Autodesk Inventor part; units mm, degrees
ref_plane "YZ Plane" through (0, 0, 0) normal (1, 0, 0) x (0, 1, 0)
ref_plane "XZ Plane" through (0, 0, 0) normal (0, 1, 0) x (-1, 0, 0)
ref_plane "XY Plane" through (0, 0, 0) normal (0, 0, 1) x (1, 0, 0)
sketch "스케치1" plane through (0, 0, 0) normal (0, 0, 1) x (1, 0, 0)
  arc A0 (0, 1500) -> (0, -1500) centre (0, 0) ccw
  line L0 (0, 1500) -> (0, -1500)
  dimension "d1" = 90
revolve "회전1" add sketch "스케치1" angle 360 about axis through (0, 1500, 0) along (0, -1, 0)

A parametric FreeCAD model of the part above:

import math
import FreeCAD as App
import Part
import Sketcher
from FreeCAD import Vector
Q = App.Units.Quantity

doc = App.newDocument("Part")
params = doc.addObject("Spreadsheet::Sheet", "Params")
for row, (alias, value) in enumerate([
    ("sketch1_radius", "1500 mm"),
    ("revolution_angle", "360 deg"),
], start=1):
    params.set(f"A{row}", alias)
    params.set(f"B{row}", "=" + value)
    params.setAlias(f"B{row}", alias)

body = doc.addObject("PartDesign::Body", "Body")

# Sketch on XY plane
sketch1 = body.newObject("Sketcher::SketchObject", "Sketch")
sketch1.AttachmentSupport = (doc.getObject("XY_Plane"), [""])
sketch1.MapMode = "FlatFace"
sketch1.addGeometry(Part.LineSegment(Vector(0, -1500, 0), Vector(0, 1500, 0)), False)
sketch1.addGeometry(Part.ArcOfCircle(Part.Circle(Vector(0, 0, 0), Vector(0, 0, 1), 1500), math.radians(90), math.radians(270)), False)
sketch1.addConstraint(Sketcher.Constraint("Coincident", 0, 1, 1, 2))
sketch1.addConstraint(Sketcher.Constraint("Coincident", 1, 1, 0, 2))
sketch1.addConstraint(Sketcher.Constraint("Vertical", 0))
sketch1.addConstraint(Sketcher.Constraint("Coincident", 1, 3, -1, 1))
sketch1.addConstraint(Sketcher.Constraint("PointOnObject", 0, 1, -2))
sketch1.addConstraint(Sketcher.Constraint("Radius", 1, Q("1500 mm")))
sketch1.setExpression("Constraints[5]", "Params.sketch1_radius")
revolution = body.newObject("PartDesign::Revolution", "Revolution")
revolution.Profile = sketch1
revolution.ReferenceAxis = (sketch1, ["V_Axis"])
revolution.setExpression("Angle", "Params.revolution_angle")

doc.recompute()
